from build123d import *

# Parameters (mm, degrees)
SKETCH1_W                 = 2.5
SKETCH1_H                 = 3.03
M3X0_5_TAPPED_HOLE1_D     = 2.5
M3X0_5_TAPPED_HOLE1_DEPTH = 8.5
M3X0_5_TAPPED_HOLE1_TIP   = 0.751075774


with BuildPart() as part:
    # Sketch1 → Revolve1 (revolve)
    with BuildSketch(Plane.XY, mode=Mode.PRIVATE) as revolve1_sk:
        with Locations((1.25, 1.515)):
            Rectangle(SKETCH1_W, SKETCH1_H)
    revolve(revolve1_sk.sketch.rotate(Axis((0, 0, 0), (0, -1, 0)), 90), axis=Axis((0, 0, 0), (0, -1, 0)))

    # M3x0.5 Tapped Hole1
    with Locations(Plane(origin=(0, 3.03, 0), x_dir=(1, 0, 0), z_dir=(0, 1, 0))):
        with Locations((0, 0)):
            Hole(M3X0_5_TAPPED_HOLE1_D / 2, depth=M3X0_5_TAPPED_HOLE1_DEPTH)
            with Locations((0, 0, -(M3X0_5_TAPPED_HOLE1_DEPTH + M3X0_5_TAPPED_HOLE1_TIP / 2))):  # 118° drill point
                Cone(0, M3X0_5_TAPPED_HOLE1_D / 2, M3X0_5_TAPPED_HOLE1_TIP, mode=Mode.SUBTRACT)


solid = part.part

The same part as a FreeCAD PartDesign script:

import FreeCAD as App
import Part
import Sketcher
from FreeCAD import Vector
Q = App.Units.Quantity

doc = App.newDocument("Part")
body = doc.addObject("PartDesign::Body", "Body")

# Sketch on XY plane
sketch1 = body.newObject("Sketcher::SketchObject", "Sketch")
sketch1.AttachmentSupport = (doc.getObject("XY_Plane"), [""])
sketch1.MapMode = "FlatFace"
sketch1.addGeometry([
    Part.LineSegment(Vector(0, 3, 0), Vector(0, 0, 0)),
    Part.LineSegment(Vector(0, 0, 0), Vector(2.5, 0, 0)),
    Part.LineSegment(Vector(2.5, 0, 0), Vector(2.5, 3, 0)),
    Part.LineSegment(Vector(2.5, 3, 0), Vector(0, 3, 0)),
], False)
sketch1.addConstraint([
    Sketcher.Constraint("Coincident", 0, 2, 1, 1),
    Sketcher.Constraint("Coincident", 1, 2, 2, 1),
    Sketcher.Constraint("Coincident", 2, 2, 3, 1),
    Sketcher.Constraint("Coincident", 3, 2, 0, 1),
    Sketcher.Constraint("Vertical", 0),
    Sketcher.Constraint("Horizontal", 1),
    Sketcher.Constraint("Vertical", 2),
    Sketcher.Constraint("Horizontal", 3),
    Sketcher.Constraint("Coincident", 0, 2, -1, 1),
    Sketcher.Constraint("DistanceX", 1, 1, 1, 2, Q("2.5 mm")),
    Sketcher.Constraint("DistanceY", 0, 2, 0, 1, Q("3.03 mm")),
])
revolution = body.newObject("PartDesign::Revolution", "Revolution")
revolution.Profile = sketch1
revolution.ReferenceAxis = (sketch1, ["V_Axis"])
revolution.Angle = 360

# Sketch on XZ plane
sketch2 = body.newObject("Sketcher::SketchObject", "Sketch001")
sketch2.AttachmentSupport = (doc.getObject("XZ_Plane"), [""])
sketch2.MapMode = "FlatFace"
sketch2.AttachmentOffset = App.Placement(Vector(0, 0, -3.03), App.Rotation())
sketch2.addGeometry(Part.Circle(Vector(0, 0, 0), Vector(0, 0, 1), 1.2), False)
sketch2.addConstraint([
    Sketcher.Constraint("Coincident", 0, 3, -1, 1),
    Sketcher.Constraint("Diameter", 0, Q("2.5 mm")),
])
doc.recompute()
hole = body.newObject("PartDesign::Hole", "Hole")
hole.Profile = sketch2
hole.ThreadType = "None"
hole.Diameter = 2.5
hole.DepthType = "Dimension"
hole.Depth = 8.5
hole.DrillPoint = "Angled"
hole.DrillPointAngle = 118
hole.Reversed = True

doc.recompute()
